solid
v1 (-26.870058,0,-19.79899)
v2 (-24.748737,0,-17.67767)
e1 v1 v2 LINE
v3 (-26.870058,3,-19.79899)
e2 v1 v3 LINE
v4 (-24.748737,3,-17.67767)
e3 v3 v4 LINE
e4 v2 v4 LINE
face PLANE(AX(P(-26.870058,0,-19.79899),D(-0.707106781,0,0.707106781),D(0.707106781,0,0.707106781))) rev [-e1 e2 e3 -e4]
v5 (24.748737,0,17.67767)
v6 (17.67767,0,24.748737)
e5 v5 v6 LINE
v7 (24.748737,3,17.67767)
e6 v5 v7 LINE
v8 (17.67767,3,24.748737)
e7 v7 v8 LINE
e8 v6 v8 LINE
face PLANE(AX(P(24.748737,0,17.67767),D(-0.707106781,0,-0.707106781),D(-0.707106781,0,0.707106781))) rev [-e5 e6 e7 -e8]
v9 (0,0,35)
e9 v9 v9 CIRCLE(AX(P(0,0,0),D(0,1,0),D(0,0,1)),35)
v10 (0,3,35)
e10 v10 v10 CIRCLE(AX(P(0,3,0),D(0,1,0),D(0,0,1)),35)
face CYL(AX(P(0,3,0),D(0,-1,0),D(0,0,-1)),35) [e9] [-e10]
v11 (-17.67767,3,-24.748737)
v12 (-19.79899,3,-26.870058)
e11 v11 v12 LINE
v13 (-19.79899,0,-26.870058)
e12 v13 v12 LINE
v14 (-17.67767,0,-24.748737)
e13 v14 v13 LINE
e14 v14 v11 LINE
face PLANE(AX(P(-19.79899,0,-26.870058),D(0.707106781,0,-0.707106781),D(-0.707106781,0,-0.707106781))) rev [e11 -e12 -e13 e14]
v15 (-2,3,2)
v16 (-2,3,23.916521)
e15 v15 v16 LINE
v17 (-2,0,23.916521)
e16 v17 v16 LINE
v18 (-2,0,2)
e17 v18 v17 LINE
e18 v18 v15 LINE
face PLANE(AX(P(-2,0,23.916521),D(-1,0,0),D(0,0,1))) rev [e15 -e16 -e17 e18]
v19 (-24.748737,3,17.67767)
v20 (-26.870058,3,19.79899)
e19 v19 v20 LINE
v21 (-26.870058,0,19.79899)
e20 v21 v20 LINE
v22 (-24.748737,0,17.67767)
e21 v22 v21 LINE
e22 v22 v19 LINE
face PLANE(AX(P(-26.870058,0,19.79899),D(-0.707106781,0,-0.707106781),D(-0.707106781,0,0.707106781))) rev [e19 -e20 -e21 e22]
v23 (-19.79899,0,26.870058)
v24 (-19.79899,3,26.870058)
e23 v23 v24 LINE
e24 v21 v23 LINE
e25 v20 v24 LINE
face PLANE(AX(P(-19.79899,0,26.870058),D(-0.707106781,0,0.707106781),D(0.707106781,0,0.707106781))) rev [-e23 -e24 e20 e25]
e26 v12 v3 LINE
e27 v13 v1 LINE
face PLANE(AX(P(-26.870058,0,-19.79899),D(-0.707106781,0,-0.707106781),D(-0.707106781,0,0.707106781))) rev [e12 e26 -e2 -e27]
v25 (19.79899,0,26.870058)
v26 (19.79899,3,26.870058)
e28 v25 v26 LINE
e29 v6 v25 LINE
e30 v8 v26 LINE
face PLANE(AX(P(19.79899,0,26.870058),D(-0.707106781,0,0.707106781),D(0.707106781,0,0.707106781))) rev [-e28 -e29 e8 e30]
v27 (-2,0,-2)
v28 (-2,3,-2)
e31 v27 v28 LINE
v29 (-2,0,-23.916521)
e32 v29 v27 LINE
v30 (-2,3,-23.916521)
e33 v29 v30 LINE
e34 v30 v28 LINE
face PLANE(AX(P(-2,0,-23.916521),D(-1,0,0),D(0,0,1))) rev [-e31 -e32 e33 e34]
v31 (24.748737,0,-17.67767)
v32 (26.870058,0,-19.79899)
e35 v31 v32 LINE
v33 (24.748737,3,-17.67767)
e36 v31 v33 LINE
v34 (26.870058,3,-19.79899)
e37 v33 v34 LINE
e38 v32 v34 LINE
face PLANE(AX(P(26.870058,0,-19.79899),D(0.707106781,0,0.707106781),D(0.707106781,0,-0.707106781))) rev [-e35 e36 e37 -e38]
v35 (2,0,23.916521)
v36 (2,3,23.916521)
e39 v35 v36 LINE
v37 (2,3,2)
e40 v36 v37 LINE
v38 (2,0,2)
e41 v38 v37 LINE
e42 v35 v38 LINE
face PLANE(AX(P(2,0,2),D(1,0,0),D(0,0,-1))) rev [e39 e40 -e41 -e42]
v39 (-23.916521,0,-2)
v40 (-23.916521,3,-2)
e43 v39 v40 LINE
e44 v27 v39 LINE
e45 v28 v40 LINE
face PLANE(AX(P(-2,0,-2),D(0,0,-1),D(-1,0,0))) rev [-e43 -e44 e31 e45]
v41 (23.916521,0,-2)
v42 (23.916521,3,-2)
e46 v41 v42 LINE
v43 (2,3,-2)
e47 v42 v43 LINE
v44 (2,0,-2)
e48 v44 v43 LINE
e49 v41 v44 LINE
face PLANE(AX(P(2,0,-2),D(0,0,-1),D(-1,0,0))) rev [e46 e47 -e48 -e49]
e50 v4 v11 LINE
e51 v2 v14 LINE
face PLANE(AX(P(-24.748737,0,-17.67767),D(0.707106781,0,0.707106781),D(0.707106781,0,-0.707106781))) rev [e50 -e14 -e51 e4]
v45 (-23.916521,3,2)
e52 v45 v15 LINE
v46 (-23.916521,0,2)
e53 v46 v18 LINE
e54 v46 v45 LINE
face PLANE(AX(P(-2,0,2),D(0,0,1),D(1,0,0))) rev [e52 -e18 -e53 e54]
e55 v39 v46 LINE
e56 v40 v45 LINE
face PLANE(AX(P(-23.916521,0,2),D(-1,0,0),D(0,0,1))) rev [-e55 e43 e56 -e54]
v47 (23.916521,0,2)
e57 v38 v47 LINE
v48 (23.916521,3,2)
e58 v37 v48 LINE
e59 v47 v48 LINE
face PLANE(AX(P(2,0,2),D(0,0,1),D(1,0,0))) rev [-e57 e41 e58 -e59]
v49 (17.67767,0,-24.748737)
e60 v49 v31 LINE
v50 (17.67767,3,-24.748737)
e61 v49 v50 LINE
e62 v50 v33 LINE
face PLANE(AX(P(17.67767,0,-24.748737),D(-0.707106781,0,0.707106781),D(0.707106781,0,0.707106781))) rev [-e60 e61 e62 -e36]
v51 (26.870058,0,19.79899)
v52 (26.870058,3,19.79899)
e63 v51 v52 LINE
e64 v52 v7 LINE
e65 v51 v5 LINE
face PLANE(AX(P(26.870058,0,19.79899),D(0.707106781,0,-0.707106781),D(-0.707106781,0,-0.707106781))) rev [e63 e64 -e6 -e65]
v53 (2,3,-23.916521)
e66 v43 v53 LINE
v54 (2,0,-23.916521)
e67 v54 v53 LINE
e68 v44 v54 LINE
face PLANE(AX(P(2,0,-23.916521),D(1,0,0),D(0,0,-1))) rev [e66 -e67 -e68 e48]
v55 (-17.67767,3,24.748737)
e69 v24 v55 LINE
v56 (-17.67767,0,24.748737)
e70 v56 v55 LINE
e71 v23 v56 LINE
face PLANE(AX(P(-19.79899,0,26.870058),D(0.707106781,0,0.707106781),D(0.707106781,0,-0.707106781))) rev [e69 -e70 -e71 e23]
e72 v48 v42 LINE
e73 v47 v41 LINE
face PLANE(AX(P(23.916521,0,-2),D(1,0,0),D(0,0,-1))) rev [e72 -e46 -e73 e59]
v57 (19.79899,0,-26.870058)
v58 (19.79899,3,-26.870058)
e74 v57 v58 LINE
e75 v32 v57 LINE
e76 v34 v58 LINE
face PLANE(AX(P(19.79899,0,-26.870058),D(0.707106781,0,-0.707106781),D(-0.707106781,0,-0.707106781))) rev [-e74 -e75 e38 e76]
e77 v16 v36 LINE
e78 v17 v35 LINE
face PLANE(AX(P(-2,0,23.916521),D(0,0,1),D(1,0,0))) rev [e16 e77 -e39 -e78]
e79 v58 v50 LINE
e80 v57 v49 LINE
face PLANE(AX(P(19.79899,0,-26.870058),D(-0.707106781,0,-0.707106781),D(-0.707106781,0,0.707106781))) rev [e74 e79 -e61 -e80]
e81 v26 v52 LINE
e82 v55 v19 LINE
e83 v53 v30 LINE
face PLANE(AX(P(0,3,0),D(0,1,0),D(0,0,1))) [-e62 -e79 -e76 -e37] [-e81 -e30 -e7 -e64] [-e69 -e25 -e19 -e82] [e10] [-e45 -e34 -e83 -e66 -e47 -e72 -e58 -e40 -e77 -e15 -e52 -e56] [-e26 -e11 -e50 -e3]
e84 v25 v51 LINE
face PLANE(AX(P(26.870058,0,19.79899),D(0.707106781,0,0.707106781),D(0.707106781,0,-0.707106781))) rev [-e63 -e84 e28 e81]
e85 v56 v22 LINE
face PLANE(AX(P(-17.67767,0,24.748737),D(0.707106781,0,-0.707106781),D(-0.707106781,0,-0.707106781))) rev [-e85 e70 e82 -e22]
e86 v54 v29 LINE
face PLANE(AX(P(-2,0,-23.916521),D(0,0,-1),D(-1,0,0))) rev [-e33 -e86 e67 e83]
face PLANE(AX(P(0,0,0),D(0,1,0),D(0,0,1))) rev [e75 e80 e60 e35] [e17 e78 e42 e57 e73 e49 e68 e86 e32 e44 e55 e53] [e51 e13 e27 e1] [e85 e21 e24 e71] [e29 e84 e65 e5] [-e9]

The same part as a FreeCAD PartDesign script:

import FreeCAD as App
import Part
import Sketcher

V = App.Vector


def add_polygon(sketch, points):
    """Adds a closed chain of lines whose ends are joined by coincident constraints."""
    first, n = sketch.GeometryCount, len(points)
    for a, b in zip(points, points[1:] + points[:1]):
        sketch.addGeometry(Part.LineSegment(App.Vector(*a, 0), App.Vector(*b, 0)), False)
    for i in range(n):
        sketch.addConstraint(Sketcher.Constraint("Coincident", first + i, 2, first + (i + 1) % n, 1))

doc = App.newDocument("Part")
body = doc.addObject("PartDesign::Body", "Body")

sketch1 = body.newObject("Sketcher::SketchObject", "Sketch")
sketch1.AttachmentSupport = (doc.getObject("XZ_Plane"), [""])
sketch1.MapMode = "FlatFace"
sketch1.addGeometry(Part.Circle(V(0, 0, 0), V(0, 0, 1), 35), False)
sketch1.addConstraint(Sketcher.Constraint("Coincident", 0, 3, -1, 1))
sketch1.addConstraint(Sketcher.Constraint("Diameter", 0, 70.0))
pad1 = body.newObject("PartDesign::Pad", "Pad")
pad1.Profile = sketch1
pad1.Length = 3
pad1.Reversed = True

sketch2 = body.newObject("Sketcher::SketchObject", "Sketch001")
sketch2.AttachmentSupport = (doc.getObject("XZ_Plane"), [""])
sketch2.MapMode = "FlatFace"
sketch2.AttachmentOffset = App.Placement(V(0, 0, -3), App.Rotation())
add_polygon(sketch2, [(2, -2), (2, -23.9), (-2, -23.9), (-2, -2), (-23.9, -2), (-23.9, 2), (-2, 2), (-2, 23.9), (2, 23.9), (2, 2), (23.9, 2), (23.9, -2)])
sketch2.addConstraint(Sketcher.Constraint("Vertical", 0))
sketch2.addConstraint(Sketcher.Constraint("Horizontal", 1))
sketch2.addConstraint(Sketcher.Constraint("Vertical", 2))
sketch2.addConstraint(Sketcher.Constraint("Horizontal", 3))
sketch2.addConstraint(Sketcher.Constraint("Vertical", 4))
sketch2.addConstraint(Sketcher.Constraint("Horizontal", 5))
sketch2.addConstraint(Sketcher.Constraint("Vertical", 6))
sketch2.addConstraint(Sketcher.Constraint("Horizontal", 7))
sketch2.addConstraint(Sketcher.Constraint("Vertical", 8))
sketch2.addConstraint(Sketcher.Constraint("Horizontal", 9))
sketch2.addConstraint(Sketcher.Constraint("Vertical", 10))
sketch2.addConstraint(Sketcher.Constraint("Horizontal", 11))
sketch2.addConstraint(Sketcher.Constraint("Symmetric", 0, 2, 6, 2, -1, 1))
sketch2.addConstraint(Sketcher.Constraint("Symmetric", 2, 2, 8, 2, -1, 1))
sketch2.addConstraint(Sketcher.Constraint("Symmetric", 4, 2, 10, 2, -1, 1))
sketch2.addConstraint(Sketcher.Constraint("Symmetric", 5, 2, 8, 2, -2))
sketch2.addConstraint(Sketcher.Constraint("Equal", 11, 0))
sketch2.addConstraint(Sketcher.Constraint("Equal", 7, 4))
sketch2.addConstraint(Sketcher.Constraint("DistanceX", 1, 2, 1, 1, 4.0))
sketch2.addConstraint(Sketcher.Constraint("DistanceX", 3, 2, 3, 1, 21.916521))
pocket1 = body.newObject("PartDesign::Pocket", "Pocket")
pocket1.Profile = sketch2
pocket1.Length = 3
pocket1.Reversed = True

sketch3 = body.newObject("Sketcher::SketchObject", "Sketch002")
sketch3.AttachmentSupport = (doc.getObject("XZ_Plane"), [""])
sketch3.MapMode = "FlatFace"
sketch3.AttachmentOffset = App.Placement(V(0, 0, -3), App.Rotation())
add_polygon(sketch3, [(26.9, -19.8), (19.8, -26.9), (17.7, -24.7), (24.7, -17.7)])
add_polygon(sketch3, [(19.8, 26.9), (26.9, 19.8), (24.7, 17.7), (17.7, 24.7)])
add_polygon(sketch3, [(-26.9, 19.8), (-19.8, 26.9), (-17.7, 24.7), (-24.7, 17.7)])
add_polygon(sketch3, [(-19.8, -26.9), (-26.9, -19.8), (-24.7, -17.7), (-17.7, -24.7)])
sketch3.addConstraint(Sketcher.Constraint("Symmetric", 0, 2, 8, 2, -1, 1))
sketch3.addConstraint(Sketcher.Constraint("Symmetric", 1, 2, 9, 2, -1, 1))
sketch3.addConstraint(Sketcher.Constraint("Symmetric", 2, 2, 10, 2, -1, 1))
sketch3.addConstraint(Sketcher.Constraint("Symmetric", 3, 2, 11, 2, -1, 1))
sketch3.addConstraint(Sketcher.Constraint("Symmetric", 4, 2, 12, 2, -1, 1))
sketch3.addConstraint(Sketcher.Constraint("Symmetric", 5, 2, 13, 2, -1, 1))
sketch3.addConstraint(Sketcher.Constraint("Symmetric", 6, 2, 14, 2, -1, 1))
sketch3.addConstraint(Sketcher.Constraint("Symmetric", 7, 2, 15, 2, -1, 1))
sketch3.addConstraint(Sketcher.Constraint("Symmetric", 7, 2, 8, 2, -2))
sketch3.addConstraint(Sketcher.Constraint("Symmetric", 6, 2, 9, 2, -2))
sketch3.addConstraint(Sketcher.Constraint("Symmetric", 5, 2, 10, 2, -2))
sketch3.addConstraint(Sketcher.Constraint("Symmetric", 4, 2, 11, 2, -2))
sketch3.addConstraint(Sketcher.Constraint("Perpendicular", 0, 1))
sketch3.addConstraint(Sketcher.Constraint("Perpendicular", 1, 2))
sketch3.addConstraint(Sketcher.Constraint("Perpendicular", 2, 3))
sketch3.addConstraint(Sketcher.Constraint("Parallel", 3, 4))
sketch3.addConstraint(Sketcher.Constraint("Distance", 0, 10.0))
sketch3.addConstraint(Sketcher.Constraint("Distance", 1, 3.0))
sketch3.addConstraint(Sketcher.Constraint("DistanceX", -1, 1, 0, 2, 19.79899))
sketch3.addConstraint(Sketcher.Constraint("DistanceY", 2, 2, -1, 1, 17.67767))
pocket2 = body.newObject("PartDesign::Pocket", "Pocket001")
pocket2.Profile = sketch3
pocket2.Length = 3
pocket2.Reversed = True

doc.recompute()
